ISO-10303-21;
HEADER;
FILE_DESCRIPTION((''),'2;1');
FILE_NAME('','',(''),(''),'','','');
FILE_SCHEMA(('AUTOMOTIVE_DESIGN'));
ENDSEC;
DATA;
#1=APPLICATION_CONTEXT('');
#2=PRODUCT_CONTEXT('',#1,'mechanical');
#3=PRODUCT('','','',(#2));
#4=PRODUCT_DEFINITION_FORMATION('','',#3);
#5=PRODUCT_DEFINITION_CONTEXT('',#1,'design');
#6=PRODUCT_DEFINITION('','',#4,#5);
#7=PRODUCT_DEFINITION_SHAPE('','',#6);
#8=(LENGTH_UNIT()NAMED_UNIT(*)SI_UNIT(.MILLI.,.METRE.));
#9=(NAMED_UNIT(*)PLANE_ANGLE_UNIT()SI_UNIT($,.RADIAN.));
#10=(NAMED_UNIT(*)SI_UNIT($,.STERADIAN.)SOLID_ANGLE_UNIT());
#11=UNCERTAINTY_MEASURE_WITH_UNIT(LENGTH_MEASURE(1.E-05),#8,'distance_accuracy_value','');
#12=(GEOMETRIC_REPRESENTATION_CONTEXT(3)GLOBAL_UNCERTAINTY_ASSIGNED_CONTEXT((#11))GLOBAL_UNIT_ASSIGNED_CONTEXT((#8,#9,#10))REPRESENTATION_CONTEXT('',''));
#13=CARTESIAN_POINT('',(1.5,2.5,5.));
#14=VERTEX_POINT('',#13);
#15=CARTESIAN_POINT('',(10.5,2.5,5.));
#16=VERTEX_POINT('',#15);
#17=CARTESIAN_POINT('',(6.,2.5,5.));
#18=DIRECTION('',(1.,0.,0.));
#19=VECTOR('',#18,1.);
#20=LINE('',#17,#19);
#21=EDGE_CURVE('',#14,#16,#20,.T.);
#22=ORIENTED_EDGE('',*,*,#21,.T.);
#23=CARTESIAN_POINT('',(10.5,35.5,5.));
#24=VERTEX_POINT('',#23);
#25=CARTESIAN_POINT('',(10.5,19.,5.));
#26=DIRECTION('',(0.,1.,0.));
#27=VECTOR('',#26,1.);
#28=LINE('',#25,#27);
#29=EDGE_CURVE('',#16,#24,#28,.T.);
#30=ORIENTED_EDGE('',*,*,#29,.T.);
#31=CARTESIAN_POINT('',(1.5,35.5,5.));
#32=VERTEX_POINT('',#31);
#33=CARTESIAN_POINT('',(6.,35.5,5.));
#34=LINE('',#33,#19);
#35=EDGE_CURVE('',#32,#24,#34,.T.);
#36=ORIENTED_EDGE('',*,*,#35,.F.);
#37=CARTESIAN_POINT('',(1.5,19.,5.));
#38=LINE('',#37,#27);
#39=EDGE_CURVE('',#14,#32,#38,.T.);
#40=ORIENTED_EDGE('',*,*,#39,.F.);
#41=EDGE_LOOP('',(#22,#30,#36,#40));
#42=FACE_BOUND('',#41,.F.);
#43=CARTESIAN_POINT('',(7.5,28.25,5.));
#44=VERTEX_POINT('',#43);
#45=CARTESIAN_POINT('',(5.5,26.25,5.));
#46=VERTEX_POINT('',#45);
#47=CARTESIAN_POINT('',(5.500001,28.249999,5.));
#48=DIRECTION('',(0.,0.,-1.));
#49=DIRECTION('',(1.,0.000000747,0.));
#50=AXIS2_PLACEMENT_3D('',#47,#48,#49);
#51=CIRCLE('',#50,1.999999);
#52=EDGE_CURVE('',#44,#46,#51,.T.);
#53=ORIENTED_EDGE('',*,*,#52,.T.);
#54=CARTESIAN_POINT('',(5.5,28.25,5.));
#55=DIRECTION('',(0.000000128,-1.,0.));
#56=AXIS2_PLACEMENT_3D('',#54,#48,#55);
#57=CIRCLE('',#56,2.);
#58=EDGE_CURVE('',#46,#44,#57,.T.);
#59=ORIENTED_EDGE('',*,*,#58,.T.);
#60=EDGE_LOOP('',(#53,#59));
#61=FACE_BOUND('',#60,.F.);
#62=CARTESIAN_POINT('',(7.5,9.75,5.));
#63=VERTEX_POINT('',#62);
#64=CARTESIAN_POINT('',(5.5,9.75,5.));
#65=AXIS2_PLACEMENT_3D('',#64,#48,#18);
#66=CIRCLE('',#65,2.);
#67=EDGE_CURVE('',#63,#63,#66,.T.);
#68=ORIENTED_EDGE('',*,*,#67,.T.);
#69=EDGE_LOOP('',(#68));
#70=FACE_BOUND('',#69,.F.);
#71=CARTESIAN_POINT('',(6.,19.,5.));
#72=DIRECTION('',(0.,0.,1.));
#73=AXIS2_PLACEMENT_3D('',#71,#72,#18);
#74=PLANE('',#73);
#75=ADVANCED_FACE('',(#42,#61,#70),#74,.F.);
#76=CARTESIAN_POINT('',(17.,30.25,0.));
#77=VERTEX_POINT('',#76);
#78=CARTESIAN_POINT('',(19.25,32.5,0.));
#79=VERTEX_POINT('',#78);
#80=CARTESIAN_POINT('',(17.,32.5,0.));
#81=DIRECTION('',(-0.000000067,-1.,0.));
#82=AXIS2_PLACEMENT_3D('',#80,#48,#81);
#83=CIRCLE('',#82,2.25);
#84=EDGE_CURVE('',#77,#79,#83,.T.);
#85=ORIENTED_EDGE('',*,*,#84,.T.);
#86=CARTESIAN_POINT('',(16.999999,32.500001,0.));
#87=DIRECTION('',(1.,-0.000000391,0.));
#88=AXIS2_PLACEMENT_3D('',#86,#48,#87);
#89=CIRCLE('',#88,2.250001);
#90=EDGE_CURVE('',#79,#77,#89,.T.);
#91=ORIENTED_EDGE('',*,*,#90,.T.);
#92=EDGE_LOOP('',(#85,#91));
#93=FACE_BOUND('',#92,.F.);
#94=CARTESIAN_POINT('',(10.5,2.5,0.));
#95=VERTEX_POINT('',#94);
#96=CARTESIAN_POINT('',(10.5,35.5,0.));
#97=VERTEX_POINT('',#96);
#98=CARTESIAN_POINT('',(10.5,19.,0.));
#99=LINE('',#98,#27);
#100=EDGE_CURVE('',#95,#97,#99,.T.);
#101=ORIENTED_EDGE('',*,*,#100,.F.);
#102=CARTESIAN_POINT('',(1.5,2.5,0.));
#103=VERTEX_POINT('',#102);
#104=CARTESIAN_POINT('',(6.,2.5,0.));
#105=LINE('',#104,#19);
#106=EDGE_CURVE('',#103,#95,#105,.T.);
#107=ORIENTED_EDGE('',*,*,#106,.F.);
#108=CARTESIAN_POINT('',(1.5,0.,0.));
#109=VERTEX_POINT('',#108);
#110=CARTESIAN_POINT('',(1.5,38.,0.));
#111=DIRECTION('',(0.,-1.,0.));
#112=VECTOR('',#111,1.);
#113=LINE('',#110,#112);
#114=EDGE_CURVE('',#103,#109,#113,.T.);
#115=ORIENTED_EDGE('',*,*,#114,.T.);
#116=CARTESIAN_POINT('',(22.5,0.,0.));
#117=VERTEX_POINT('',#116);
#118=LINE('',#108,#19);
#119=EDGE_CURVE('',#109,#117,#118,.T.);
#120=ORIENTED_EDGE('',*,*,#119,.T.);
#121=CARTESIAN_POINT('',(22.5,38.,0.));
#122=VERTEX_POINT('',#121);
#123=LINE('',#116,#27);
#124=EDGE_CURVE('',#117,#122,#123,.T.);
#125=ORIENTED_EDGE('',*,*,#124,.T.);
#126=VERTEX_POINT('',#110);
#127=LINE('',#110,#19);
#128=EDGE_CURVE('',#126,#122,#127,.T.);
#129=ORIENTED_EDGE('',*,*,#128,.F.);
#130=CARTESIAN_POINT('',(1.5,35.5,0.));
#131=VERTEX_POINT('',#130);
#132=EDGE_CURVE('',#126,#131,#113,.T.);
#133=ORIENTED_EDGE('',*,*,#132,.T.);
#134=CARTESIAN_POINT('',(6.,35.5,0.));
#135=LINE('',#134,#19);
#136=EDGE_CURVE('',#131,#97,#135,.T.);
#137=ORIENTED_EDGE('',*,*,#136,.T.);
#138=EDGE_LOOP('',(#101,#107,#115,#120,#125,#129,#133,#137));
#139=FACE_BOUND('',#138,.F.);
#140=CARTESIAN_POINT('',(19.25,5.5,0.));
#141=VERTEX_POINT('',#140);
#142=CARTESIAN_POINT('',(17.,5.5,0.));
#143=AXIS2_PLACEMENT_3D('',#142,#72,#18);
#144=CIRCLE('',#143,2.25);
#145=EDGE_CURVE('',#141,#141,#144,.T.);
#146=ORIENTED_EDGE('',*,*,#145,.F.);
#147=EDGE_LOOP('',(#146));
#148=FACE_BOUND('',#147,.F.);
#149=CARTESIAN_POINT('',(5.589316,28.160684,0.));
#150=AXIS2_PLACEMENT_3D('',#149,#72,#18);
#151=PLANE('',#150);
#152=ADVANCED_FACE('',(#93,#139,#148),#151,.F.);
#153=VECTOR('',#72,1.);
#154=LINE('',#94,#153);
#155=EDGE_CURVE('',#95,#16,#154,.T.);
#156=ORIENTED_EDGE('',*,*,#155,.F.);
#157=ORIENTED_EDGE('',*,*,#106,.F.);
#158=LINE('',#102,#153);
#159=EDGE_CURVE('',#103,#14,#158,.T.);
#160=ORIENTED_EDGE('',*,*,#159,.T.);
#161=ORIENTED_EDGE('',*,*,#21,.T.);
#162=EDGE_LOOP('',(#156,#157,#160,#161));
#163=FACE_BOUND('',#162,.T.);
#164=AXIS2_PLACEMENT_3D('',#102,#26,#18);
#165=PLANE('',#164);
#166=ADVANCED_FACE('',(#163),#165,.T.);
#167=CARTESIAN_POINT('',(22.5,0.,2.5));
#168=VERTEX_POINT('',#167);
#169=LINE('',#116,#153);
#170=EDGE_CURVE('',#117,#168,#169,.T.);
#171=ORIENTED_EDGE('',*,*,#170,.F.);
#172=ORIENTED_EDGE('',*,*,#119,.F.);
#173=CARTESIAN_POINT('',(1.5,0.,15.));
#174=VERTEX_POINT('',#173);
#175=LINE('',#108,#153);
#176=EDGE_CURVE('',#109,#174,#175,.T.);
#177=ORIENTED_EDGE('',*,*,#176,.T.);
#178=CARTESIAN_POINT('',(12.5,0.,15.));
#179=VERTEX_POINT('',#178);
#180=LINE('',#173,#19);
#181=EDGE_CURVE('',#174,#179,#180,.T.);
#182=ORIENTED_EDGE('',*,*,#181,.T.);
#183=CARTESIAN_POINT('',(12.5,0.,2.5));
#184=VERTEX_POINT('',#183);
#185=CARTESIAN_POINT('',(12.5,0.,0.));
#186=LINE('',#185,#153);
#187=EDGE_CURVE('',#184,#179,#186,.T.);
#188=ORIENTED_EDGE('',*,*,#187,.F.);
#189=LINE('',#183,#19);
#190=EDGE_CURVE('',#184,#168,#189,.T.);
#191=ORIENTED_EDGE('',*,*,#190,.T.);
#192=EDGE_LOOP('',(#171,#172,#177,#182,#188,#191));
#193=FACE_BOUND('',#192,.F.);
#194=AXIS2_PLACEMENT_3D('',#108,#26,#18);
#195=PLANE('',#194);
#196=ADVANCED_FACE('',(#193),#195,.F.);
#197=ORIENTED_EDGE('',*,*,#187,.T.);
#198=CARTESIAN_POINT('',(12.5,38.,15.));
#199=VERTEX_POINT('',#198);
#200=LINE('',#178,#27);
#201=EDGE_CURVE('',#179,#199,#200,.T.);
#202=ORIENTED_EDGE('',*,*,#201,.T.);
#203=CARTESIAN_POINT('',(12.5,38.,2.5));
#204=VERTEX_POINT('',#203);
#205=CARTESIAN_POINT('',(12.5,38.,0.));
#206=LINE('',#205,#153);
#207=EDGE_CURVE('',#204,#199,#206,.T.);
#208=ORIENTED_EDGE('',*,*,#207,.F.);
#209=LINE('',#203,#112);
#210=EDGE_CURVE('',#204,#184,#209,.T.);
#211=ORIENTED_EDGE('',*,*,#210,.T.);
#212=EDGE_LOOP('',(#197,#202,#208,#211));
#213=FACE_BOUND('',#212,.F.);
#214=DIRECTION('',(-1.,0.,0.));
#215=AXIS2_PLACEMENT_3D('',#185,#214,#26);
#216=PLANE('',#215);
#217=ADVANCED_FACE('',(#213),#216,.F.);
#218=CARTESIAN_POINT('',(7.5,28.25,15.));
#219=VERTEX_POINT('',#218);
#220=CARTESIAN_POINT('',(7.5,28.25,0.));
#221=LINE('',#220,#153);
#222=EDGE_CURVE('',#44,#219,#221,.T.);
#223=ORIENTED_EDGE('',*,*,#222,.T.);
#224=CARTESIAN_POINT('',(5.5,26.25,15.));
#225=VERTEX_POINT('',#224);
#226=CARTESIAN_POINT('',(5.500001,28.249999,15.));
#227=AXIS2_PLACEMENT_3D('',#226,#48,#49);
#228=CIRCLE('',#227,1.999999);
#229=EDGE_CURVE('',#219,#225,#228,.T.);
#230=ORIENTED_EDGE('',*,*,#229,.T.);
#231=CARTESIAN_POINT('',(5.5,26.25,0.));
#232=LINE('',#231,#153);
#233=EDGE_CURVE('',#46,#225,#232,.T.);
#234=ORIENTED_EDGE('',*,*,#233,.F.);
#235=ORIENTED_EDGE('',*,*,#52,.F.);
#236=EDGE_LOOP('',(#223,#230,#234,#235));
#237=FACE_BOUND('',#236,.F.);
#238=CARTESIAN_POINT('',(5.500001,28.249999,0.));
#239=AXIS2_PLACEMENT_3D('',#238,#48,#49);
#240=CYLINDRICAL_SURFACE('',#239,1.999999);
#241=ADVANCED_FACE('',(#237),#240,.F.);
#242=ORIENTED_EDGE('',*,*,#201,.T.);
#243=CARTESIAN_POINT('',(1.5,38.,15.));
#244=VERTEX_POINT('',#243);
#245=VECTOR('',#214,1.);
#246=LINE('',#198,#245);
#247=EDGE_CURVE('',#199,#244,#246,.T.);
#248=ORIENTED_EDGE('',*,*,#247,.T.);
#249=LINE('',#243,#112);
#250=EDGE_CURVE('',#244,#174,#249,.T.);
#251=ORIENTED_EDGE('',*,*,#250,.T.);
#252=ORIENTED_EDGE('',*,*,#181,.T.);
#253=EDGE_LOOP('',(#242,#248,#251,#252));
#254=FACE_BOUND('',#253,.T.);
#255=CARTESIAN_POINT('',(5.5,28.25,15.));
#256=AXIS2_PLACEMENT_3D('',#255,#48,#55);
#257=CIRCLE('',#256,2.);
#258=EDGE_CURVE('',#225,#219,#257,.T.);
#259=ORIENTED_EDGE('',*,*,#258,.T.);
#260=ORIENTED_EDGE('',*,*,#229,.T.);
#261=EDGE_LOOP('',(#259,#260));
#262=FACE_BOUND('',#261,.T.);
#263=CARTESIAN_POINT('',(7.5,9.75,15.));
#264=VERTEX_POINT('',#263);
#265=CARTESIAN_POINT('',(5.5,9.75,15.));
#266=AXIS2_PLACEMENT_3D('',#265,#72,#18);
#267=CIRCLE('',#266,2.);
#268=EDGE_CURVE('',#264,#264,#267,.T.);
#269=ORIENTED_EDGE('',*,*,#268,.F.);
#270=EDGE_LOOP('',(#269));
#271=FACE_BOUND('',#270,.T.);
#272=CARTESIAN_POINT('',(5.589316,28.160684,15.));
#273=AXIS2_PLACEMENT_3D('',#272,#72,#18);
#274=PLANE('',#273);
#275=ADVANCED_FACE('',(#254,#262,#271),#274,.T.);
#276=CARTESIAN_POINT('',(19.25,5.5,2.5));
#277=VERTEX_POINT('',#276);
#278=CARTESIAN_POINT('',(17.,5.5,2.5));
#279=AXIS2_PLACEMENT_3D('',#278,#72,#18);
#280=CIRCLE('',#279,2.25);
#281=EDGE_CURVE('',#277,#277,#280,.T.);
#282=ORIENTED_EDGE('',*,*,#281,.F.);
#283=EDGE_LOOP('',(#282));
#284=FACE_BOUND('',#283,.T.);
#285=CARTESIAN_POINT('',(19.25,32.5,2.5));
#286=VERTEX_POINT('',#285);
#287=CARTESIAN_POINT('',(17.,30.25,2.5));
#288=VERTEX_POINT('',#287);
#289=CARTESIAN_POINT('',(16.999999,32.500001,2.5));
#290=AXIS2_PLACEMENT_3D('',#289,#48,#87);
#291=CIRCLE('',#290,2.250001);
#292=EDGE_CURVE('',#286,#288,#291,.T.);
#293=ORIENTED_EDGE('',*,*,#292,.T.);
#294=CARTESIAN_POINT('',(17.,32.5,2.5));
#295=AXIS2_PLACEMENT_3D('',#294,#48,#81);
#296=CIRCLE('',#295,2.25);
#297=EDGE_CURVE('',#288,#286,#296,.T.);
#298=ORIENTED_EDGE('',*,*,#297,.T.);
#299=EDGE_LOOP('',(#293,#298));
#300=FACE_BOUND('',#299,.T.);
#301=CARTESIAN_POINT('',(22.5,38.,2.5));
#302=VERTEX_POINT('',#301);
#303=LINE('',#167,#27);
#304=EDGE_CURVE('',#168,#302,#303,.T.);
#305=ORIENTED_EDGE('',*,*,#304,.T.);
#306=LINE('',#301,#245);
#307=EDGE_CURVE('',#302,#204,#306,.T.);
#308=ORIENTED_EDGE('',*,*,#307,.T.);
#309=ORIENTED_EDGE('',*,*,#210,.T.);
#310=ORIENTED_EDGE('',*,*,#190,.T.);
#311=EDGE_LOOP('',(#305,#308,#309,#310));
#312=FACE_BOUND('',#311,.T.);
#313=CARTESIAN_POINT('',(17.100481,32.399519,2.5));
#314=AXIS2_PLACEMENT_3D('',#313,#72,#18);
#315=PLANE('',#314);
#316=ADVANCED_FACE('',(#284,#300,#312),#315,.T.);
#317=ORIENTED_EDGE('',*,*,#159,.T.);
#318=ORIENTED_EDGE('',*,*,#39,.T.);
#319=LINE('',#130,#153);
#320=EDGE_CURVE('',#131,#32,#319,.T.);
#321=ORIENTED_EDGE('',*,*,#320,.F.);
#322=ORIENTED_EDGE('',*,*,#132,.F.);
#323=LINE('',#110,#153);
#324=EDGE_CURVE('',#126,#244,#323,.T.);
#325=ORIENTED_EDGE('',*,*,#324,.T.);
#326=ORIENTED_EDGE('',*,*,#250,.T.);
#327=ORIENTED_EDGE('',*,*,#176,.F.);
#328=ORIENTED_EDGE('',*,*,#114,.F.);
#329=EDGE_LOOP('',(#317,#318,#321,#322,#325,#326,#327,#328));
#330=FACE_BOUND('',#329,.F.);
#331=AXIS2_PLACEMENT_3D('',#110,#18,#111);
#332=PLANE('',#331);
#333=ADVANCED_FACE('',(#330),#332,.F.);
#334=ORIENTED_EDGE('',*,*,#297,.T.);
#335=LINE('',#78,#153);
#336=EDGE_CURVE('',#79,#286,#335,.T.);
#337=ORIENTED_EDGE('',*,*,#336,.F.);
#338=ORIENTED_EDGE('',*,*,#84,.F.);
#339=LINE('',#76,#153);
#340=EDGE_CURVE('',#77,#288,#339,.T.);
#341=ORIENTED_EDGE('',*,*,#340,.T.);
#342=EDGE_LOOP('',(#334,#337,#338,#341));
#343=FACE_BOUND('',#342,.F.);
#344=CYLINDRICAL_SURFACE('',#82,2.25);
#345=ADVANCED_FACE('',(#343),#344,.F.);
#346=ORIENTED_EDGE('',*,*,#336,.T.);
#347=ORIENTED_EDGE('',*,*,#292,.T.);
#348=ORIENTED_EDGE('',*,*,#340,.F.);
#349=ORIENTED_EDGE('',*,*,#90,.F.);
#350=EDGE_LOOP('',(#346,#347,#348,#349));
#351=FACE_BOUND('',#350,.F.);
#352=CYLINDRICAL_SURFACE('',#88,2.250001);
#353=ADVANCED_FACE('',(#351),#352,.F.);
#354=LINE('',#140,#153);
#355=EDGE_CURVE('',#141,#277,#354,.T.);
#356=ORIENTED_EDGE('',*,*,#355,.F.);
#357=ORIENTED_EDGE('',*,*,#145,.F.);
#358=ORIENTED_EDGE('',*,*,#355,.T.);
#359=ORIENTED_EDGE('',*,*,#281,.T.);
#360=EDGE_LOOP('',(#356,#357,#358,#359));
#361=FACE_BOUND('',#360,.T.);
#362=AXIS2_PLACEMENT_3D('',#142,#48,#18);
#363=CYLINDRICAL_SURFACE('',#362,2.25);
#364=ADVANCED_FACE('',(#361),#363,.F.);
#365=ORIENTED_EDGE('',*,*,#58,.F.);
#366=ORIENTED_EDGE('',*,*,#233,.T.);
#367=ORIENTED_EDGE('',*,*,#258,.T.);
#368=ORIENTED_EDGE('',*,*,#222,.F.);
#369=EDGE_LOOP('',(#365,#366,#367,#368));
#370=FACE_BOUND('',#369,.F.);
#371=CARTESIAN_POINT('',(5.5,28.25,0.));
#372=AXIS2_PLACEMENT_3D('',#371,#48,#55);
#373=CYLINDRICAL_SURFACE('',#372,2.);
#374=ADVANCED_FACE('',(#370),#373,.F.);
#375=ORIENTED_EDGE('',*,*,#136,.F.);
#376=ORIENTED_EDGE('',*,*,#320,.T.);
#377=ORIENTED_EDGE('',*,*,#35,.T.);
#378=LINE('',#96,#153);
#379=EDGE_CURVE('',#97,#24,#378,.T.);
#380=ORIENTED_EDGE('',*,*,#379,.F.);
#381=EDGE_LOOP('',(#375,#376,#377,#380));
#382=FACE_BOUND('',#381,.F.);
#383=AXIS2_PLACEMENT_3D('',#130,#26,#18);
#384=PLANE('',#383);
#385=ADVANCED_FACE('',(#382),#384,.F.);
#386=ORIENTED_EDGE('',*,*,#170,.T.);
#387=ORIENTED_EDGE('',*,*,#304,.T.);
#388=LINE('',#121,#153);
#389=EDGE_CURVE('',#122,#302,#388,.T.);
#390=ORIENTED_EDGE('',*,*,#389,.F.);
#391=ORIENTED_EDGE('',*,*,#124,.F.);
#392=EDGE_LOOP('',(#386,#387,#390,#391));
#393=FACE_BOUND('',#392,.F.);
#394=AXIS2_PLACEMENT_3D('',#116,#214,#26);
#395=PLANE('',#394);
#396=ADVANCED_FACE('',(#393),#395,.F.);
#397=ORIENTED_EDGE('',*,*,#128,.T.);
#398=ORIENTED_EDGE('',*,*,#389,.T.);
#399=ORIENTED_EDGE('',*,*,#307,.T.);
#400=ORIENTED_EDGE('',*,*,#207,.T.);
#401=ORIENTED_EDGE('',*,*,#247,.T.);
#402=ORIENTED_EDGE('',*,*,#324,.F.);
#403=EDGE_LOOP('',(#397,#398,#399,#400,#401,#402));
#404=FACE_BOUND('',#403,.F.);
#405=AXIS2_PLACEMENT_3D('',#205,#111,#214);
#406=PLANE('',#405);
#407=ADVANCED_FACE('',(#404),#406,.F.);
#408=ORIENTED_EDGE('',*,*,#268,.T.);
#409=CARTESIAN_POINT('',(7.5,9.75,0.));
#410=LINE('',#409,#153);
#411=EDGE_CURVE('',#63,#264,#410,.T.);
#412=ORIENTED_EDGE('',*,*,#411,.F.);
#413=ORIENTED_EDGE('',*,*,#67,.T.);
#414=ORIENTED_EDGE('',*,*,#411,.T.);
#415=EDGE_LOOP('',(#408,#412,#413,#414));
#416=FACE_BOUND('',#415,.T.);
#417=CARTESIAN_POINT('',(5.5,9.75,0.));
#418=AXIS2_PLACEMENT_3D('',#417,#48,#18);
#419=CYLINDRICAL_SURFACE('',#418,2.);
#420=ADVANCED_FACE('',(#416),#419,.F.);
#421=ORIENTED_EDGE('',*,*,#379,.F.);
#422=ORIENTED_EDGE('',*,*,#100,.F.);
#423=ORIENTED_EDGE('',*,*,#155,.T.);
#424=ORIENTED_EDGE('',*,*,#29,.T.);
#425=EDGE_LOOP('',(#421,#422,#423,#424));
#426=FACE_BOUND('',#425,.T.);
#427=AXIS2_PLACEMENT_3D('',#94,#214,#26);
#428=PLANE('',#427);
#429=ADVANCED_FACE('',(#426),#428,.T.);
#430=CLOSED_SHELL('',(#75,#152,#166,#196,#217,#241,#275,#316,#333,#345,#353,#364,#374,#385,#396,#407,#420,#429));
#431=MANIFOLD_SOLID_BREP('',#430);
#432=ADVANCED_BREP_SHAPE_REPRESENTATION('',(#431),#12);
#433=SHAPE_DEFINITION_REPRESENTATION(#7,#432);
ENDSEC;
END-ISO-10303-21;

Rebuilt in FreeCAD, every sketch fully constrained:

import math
import FreeCAD as App
import Part
import Sketcher

V = App.Vector

doc = App.newDocument("Part")
params = doc.addObject("Spreadsheet::Sheet", "Params")
for row, (alias, value) in enumerate([
    ("sketch1_diameter", "4.5 mm"),
    ("sketch1_width", "10 mm"),
    ("sketch1_height", "38 mm"),
    ("pad1_length", "2.5 mm"),
    ("sketch2_diameter", "4 mm"),
    ("sketch2_width", "11 mm"),
    ("sketch2_height", "38 mm"),
    ("pad2_length", "15 mm"),
    ("sketch3_width", "9 mm"),
    ("sketch3_height", "33 mm"),
    ("pocket1_length", "5 mm"),
], start=1):
    params.set(f"A{row}", alias)
    params.set(f"B{row}", "=" + value)
    params.setAlias(f"B{row}", alias)

body = doc.addObject("PartDesign::Body", "Body")

sketch1 = body.newObject("Sketcher::SketchObject", "Sketch")
sketch1.AttachmentSupport = (doc.getObject("XY_Plane"), [""])
sketch1.MapMode = "FlatFace"
sketch1.addGeometry([
    Part.LineSegment(V(12.5, 0, 0), V(22.5, 0, 0)),
    Part.LineSegment(V(22.5, 0, 0), V(22.5, 38, 0)),
    Part.LineSegment(V(22.5, 38, 0), V(12.5, 38, 0)),
    Part.LineSegment(V(12.5, 38, 0), V(12.5, 0, 0)),
    Part.Circle(V(17, 5.5, 0), V(0, 0, 1), 2.2),
    Part.ArcOfCircle(Part.Circle(V(17, 32.5, 0), V(0, 0, 1), 2.2), math.radians(0), math.radians(270)),
    Part.ArcOfCircle(Part.Circle(V(17, 32.5, 0), V(0, 0, 1), 2.3), math.radians(-90), math.radians(0)),
], False)
sketch1.addConstraint([
    Sketcher.Constraint("Coincident", 0, 2, 1, 1),
    Sketcher.Constraint("Coincident", 1, 2, 2, 1),
    Sketcher.Constraint("Coincident", 2, 2, 3, 1),
    Sketcher.Constraint("Coincident", 3, 2, 0, 1),
    Sketcher.Constraint("Tangent", 5, 1, 6, 2),
    Sketcher.Constraint("Coincident", 6, 1, 5, 2),
    Sketcher.Constraint("Horizontal", 0),
    Sketcher.Constraint("Vertical", 1),
    Sketcher.Constraint("Horizontal", 2),
    Sketcher.Constraint("Vertical", 3),
    Sketcher.Constraint("Equal", 4, 5),
    Sketcher.Constraint("PointOnObject", 0, 2, -1),
    Sketcher.Constraint("Horizontal", 6, 3, 5, 1),
    Sketcher.Constraint("Vertical", 4, 3, 5, 3),
    Sketcher.Constraint("Vertical", 5, 3, 6, 1),
    Sketcher.Constraint("Diameter", 4, 4.5),
    Sketcher.Constraint("DistanceX", 0, 1, 0, 2, 10.0),
    Sketcher.Constraint("DistanceY", 1, 1, 1, 2, 38.0),
    Sketcher.Constraint("DistanceX", -1, 1, 4, 3, 17.0),
    Sketcher.Constraint("DistanceY", 4, 3, 5, 3, 27.0),
    Sketcher.Constraint("DistanceY", -1, 1, 4, 3, 5.5),
    Sketcher.Constraint("DistanceX", -1, 1, 0, 2, 22.5),
])
sketch1.setExpression("Constraints[15]", "Params.sketch1_diameter")
sketch1.setExpression("Constraints[16]", "Params.sketch1_width")
sketch1.setExpression("Constraints[17]", "Params.sketch1_height")
pad1 = body.newObject("PartDesign::Pad", "Pad")
pad1.Profile = sketch1
pad1.setExpression("Length", "Params.pad1_length")

sketch2 = body.newObject("Sketcher::SketchObject", "Sketch001")
sketch2.AttachmentSupport = (doc.getObject("XY_Plane"), [""])
sketch2.MapMode = "FlatFace"
sketch2.addGeometry([
    Part.LineSegment(V(1.5, 0, 0), V(12.5, 0, 0)),
    Part.LineSegment(V(12.5, 0, 0), V(12.5, 38, 0)),
    Part.LineSegment(V(12.5, 38, 0), V(1.5, 38, 0)),
    Part.LineSegment(V(1.5, 38, 0), V(1.5, 0, 0)),
    Part.Circle(V(5.5, 9.8, 0), V(0, 0, 1), 2),
    Part.ArcOfCircle(Part.Circle(V(5.5, 28.3, 0), V(0, 0, 1), 2), math.radians(0), math.radians(270)),
    Part.ArcOfCircle(Part.Circle(V(5.5, 28.2, 0), V(0, 0, 1), 2), math.radians(-90), math.radians(0)),
], False)
sketch2.addConstraint([
    Sketcher.Constraint("Coincident", 0, 2, 1, 1),
    Sketcher.Constraint("Coincident", 1, 2, 2, 1),
    Sketcher.Constraint("Coincident", 2, 2, 3, 1),
    Sketcher.Constraint("Coincident", 3, 2, 0, 1),
    Sketcher.Constraint("Tangent", 5, 1, 6, 2),
    Sketcher.Constraint("Coincident", 6, 1, 5, 2),
    Sketcher.Constraint("Horizontal", 0),
    Sketcher.Constraint("Vertical", 1),
    Sketcher.Constraint("Horizontal", 2),
    Sketcher.Constraint("Vertical", 3),
    Sketcher.Constraint("Equal", 4, 5),
    Sketcher.Constraint("PointOnObject", 0, 2, -1),
    Sketcher.Constraint("Horizontal", 6, 3, 5, 1),
    Sketcher.Constraint("Vertical", 4, 3, 5, 3),
    Sketcher.Constraint("Vertical", 5, 3, 6, 1),
    Sketcher.Constraint("Diameter", 4, 4.0),
    Sketcher.Constraint("DistanceX", 0, 1, 0, 2, 11.0),
    Sketcher.Constraint("DistanceY", 1, 1, 1, 2, 38.0),
    Sketcher.Constraint("DistanceX", 4, 3, 0, 2, 7.0),
    Sketcher.Constraint("DistanceX", -1, 1, 4, 3, 5.5),
    Sketcher.Constraint("DistanceY", 4, 3, 5, 3, 18.5),
    Sketcher.Constraint("DistanceY", -1, 1, 4, 3, 9.75),
])
sketch2.setExpression("Constraints[15]", "Params.sketch2_diameter")
sketch2.setExpression("Constraints[16]", "Params.sketch2_width")
sketch2.setExpression("Constraints[17]", "Params.sketch2_height")
pad2 = body.newObject("PartDesign::Pad", "Pad001")
pad2.Profile = sketch2
pad2.setExpression("Length", "Params.pad2_length")

sketch3 = body.newObject("Sketcher::SketchObject", "Sketch002")
sketch3.AttachmentSupport = (doc.getObject("XY_Plane"), [""])
sketch3.MapMode = "FlatFace"
sketch3.addGeometry([
    Part.LineSegment(V(2, 36, 0), V(2, 2, 0)),
    Part.LineSegment(V(2, 2, 0), V(10, 2, 0)),
    Part.LineSegment(V(10, 2, 0), V(10, 36, 0)),
    Part.LineSegment(V(10, 36, 0), V(2, 36, 0)),
], False)
sketch3.addConstraint([
    Sketcher.Constraint("Coincident", 0, 2, 1, 1),
    Sketcher.Constraint("Coincident", 1, 2, 2, 1),
    Sketcher.Constraint("Coincident", 2, 2, 3, 1),
    Sketcher.Constraint("Coincident", 3, 2, 0, 1),
    Sketcher.Constraint("Vertical", 0),
    Sketcher.Constraint("Horizontal", 1),
    Sketcher.Constraint("Vertical", 2),
    Sketcher.Constraint("Horizontal", 3),
    Sketcher.Constraint("DistanceX", 1, 1, 1, 2, 9.0),
    Sketcher.Constraint("DistanceY", 0, 2, 0, 1, 33.0),
    Sketcher.Constraint("DistanceX", -1, 1, 0, 2, 1.5),
    Sketcher.Constraint("DistanceY", -1, 1, 0, 2, 2.5),
])
sketch3.setExpression("Constraints[8]", "Params.sketch3_width")
sketch3.setExpression("Constraints[9]", "Params.sketch3_height")
pocket1 = body.newObject("PartDesign::Pocket", "Pocket")
pocket1.Profile = sketch3
pocket1.setExpression("Length", "Params.pocket1_length")
pocket1.Reversed = True

doc.recompute()
